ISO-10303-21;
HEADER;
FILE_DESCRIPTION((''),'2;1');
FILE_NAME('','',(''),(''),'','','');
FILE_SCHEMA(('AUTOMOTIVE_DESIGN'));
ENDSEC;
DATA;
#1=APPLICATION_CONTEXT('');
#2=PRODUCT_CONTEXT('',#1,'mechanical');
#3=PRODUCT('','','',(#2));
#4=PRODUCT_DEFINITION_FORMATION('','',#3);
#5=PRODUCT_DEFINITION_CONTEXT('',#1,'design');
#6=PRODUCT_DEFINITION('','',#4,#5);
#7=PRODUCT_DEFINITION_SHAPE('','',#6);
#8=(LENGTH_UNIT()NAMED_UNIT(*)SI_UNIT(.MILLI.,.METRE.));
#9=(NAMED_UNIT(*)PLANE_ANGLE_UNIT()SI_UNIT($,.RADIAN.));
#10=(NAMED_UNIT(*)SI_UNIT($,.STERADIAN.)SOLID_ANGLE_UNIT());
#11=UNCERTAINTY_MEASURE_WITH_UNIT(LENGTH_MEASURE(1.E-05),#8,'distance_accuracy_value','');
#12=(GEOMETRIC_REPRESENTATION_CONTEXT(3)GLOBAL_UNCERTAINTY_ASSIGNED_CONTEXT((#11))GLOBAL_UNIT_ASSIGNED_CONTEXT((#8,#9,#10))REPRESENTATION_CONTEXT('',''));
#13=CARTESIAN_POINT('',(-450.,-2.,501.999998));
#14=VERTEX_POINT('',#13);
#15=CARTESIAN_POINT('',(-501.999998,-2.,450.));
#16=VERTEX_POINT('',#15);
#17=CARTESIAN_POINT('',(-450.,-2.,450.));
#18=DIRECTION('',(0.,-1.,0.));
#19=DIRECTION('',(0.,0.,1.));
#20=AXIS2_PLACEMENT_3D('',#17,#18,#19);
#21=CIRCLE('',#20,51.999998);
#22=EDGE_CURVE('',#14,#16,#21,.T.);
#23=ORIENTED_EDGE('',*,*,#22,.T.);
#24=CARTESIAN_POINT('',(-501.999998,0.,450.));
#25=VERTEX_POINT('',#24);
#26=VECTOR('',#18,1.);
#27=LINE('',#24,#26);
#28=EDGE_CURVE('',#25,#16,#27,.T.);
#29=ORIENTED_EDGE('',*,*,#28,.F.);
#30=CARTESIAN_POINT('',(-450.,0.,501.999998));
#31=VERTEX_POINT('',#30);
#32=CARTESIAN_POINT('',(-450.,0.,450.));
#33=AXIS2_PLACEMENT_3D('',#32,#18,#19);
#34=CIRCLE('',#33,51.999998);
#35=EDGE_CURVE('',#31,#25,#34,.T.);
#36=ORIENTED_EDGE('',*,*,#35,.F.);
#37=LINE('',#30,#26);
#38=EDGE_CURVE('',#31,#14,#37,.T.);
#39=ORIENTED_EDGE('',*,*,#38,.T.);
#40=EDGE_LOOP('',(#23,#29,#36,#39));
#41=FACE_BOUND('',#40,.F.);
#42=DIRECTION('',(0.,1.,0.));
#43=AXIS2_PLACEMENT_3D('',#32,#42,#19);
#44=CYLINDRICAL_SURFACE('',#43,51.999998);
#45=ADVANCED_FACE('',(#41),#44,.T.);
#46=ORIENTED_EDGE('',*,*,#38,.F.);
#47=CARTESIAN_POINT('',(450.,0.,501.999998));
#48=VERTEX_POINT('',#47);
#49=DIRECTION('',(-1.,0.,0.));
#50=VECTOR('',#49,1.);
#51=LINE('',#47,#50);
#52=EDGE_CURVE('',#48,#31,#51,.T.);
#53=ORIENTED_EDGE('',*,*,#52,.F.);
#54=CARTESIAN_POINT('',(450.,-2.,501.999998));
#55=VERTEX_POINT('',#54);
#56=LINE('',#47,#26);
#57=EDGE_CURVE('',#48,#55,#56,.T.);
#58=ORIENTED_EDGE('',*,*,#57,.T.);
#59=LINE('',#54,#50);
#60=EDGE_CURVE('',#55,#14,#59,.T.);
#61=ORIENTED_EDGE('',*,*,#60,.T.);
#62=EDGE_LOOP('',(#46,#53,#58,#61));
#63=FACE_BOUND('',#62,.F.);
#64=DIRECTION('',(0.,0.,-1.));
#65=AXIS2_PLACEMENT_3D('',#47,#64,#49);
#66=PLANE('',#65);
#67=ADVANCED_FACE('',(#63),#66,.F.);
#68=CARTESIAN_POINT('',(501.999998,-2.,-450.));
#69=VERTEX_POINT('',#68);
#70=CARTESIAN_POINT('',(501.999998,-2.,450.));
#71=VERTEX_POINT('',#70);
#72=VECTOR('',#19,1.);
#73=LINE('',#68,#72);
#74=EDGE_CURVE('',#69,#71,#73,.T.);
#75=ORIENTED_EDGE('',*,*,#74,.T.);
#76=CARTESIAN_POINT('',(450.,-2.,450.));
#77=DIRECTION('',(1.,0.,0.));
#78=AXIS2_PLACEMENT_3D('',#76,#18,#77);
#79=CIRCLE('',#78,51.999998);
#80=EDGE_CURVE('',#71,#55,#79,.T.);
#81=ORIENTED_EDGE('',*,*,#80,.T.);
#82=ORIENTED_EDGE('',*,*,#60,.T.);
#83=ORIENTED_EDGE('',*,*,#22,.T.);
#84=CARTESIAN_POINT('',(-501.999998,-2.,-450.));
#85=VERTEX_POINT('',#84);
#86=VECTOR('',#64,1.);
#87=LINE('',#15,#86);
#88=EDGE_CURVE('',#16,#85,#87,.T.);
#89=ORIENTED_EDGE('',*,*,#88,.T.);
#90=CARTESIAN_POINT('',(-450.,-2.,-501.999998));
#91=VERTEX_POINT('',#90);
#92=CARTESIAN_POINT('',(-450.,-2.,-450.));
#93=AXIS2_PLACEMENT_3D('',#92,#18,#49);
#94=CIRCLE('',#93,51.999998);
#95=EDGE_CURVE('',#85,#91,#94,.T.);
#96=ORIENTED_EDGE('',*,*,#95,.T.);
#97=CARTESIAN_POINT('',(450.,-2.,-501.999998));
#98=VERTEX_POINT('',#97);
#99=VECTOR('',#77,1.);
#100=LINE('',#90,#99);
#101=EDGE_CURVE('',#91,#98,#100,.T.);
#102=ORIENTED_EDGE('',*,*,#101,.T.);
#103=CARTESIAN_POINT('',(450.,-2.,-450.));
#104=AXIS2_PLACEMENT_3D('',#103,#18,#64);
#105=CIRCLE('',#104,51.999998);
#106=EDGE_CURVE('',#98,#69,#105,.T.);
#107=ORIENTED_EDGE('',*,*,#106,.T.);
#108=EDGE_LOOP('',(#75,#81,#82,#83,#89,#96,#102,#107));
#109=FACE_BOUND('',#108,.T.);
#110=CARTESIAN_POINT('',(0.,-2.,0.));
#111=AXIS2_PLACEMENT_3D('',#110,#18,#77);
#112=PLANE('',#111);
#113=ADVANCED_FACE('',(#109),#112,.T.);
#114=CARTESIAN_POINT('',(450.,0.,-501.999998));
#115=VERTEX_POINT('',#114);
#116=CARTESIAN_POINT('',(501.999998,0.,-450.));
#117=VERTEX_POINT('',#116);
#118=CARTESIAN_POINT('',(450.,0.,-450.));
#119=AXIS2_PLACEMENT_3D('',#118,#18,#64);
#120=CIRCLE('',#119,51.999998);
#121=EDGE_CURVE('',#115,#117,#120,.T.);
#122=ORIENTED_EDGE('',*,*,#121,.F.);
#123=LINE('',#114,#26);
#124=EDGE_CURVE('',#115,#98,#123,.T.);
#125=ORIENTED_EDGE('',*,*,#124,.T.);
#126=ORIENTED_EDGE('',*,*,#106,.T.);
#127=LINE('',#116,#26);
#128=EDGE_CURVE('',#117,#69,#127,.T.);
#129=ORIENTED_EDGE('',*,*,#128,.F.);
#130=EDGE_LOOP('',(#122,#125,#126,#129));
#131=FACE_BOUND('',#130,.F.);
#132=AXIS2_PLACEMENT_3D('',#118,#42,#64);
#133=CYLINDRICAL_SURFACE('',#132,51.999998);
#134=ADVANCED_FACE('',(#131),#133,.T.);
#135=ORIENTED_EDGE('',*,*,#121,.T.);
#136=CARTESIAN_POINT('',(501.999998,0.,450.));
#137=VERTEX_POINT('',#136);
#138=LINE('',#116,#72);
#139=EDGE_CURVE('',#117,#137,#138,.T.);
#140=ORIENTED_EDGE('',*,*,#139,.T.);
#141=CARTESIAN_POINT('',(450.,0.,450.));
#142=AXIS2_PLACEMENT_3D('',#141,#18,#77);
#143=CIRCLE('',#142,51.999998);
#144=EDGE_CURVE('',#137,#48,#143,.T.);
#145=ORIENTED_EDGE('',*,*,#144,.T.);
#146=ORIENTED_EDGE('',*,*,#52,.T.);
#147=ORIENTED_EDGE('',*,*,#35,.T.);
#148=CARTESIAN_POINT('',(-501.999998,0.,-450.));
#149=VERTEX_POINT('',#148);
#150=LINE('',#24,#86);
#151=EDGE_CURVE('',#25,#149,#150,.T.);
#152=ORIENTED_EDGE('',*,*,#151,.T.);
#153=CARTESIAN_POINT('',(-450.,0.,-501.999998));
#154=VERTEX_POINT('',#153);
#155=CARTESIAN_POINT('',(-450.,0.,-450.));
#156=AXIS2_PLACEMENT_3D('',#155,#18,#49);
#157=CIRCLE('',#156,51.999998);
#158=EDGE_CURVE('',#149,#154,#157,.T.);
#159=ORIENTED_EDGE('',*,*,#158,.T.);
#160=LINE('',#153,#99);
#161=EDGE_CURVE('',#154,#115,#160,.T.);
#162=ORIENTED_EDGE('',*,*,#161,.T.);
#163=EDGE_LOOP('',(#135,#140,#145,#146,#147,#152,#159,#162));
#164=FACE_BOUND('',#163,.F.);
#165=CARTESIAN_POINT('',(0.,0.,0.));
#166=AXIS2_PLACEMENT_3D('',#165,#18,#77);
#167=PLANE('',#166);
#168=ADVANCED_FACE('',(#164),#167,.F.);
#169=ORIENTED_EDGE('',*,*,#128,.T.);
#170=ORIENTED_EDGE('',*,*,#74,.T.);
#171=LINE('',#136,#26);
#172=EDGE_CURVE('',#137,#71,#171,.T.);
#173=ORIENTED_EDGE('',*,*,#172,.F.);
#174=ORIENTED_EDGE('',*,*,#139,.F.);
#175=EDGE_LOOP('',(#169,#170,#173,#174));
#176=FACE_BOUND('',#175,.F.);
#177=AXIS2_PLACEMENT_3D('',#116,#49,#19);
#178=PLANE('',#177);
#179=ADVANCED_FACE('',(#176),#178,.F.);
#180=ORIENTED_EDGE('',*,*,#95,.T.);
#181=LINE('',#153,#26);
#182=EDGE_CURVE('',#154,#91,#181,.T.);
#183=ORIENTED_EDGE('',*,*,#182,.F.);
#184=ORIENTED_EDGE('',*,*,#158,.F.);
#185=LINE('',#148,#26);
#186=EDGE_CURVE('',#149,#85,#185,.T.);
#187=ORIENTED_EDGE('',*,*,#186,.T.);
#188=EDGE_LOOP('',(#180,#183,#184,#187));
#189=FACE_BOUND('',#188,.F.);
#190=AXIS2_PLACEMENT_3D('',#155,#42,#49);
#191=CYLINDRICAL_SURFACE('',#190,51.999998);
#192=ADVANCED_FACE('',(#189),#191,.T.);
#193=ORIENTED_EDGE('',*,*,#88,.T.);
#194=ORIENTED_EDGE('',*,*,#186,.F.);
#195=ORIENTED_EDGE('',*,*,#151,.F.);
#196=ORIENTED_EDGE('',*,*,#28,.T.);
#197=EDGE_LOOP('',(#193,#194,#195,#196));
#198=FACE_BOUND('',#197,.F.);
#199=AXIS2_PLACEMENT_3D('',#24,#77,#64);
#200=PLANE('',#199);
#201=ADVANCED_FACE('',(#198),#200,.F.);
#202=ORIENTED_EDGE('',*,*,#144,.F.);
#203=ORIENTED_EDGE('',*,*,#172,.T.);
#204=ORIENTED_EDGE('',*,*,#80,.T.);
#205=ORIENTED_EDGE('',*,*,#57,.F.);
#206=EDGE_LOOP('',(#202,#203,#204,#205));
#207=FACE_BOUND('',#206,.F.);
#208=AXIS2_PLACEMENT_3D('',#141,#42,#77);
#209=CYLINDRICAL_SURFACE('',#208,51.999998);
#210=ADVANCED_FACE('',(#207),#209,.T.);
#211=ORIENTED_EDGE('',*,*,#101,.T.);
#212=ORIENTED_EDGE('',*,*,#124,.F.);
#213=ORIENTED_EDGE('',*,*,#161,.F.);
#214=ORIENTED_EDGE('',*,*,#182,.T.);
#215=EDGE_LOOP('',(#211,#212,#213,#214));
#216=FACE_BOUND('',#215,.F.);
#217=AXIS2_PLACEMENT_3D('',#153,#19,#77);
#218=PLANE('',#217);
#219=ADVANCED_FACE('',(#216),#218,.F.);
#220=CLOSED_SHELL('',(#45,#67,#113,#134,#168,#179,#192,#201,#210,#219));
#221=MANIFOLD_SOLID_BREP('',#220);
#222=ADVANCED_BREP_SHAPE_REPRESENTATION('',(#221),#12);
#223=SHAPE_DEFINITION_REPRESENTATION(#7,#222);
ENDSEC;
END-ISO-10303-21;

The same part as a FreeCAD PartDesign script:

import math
import FreeCAD as App
import Part
import Sketcher
from FreeCAD import Vector

doc = App.newDocument("Part")
body = doc.addObject("PartDesign::Body", "Body")

# Sketch on XZ plane
sketch1 = body.newObject("Sketcher::SketchObject", "Sketch")
sketch1.AttachmentSupport = (doc.getObject("XZ_Plane"), [""])
sketch1.MapMode = "FlatFace"
sketch1.addGeometry([
    Part.LineSegment(Vector(-502, 450, 0), Vector(-502, -450, 0)),  # 0
    Part.ArcOfCircle(Part.Circle(Vector(-450, -450, 0), Vector(0, 0, 1), 52), math.radians(180), math.radians(270)),  # 1
    Part.LineSegment(Vector(-450, -502, 0), Vector(450, -502, 0)),  # 2
    Part.ArcOfCircle(Part.Circle(Vector(450, -450, 0), Vector(0, 0, 1), 52), math.radians(-90), math.radians(0)),  # 3
    Part.LineSegment(Vector(502, -450, 0), Vector(502, 450, 0)),  # 4
    Part.ArcOfCircle(Part.Circle(Vector(450, 450, 0), Vector(0, 0, 1), 52), math.radians(0), math.radians(90)),  # 5
    Part.LineSegment(Vector(450, 502, 0), Vector(-450, 502, 0)),  # 6
    Part.ArcOfCircle(Part.Circle(Vector(-450, 450, 0), Vector(0, 0, 1), 52), math.radians(90), math.radians(180)),  # 7
], False)
sketch1.addConstraint([
    Sketcher.Constraint("Tangent", 0, 2, 1, 1),
    Sketcher.Constraint("Tangent", 1, 2, 2, 1),
    Sketcher.Constraint("Tangent", 2, 2, 3, 1),
    Sketcher.Constraint("Tangent", 3, 2, 4, 1),
    Sketcher.Constraint("Tangent", 4, 2, 5, 1),
    Sketcher.Constraint("Tangent", 5, 2, 6, 1),
    Sketcher.Constraint("Tangent", 6, 2, 7, 1),
    Sketcher.Constraint("Tangent", 7, 2, 0, 1),
    Sketcher.Constraint("Vertical", 0),
    Sketcher.Constraint("Horizontal", 2),
    Sketcher.Constraint("Vertical", 4),
    Sketcher.Constraint("Horizontal", 6),
    Sketcher.Constraint("Equal", 1, 3),
    Sketcher.Constraint("Equal", 3, 5),
    Sketcher.Constraint("Equal", 5, 7),
    Sketcher.Constraint("Symmetric", 1, 3, 5, 3, -1, 1),
    Sketcher.Constraint("Equal", 6, 0),
    Sketcher.Constraint("Radius", 1, 51.999998),
    Sketcher.Constraint("DistanceX", 2, 1, 2, 2, 900.0),
])
pad1 = body.newObject("PartDesign::Pad", "Pad")
pad1.Profile = sketch1
pad1.Length = 2

doc.recompute()
